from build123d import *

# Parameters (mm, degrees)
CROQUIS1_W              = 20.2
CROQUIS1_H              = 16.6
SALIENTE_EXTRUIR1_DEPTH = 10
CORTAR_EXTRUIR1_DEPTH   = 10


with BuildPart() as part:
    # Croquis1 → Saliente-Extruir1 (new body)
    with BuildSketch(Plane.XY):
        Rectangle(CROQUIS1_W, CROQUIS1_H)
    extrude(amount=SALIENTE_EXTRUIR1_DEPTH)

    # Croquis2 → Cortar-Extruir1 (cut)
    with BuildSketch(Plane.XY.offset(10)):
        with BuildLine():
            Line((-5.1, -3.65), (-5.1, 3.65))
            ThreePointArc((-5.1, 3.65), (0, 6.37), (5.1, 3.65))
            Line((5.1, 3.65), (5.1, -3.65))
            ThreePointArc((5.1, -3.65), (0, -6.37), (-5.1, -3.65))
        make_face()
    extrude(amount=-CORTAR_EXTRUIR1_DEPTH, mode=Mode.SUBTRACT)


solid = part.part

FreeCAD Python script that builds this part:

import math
import FreeCAD as App
import Part
import Sketcher

V = App.Vector
Q = App.Units.Quantity


def add_polygon(sketch, points):
    """Adds a closed chain of lines whose ends are joined by coincident constraints."""
    first, n = sketch.GeometryCount, len(points)
    for a, b in zip(points, points[1:] + points[:1]):
        sketch.addGeometry(Part.LineSegment(App.Vector(*a, 0), App.Vector(*b, 0)), False)
    for i in range(n):
        sketch.addConstraint(Sketcher.Constraint("Coincident", first + i, 2, first + (i + 1) % n, 1))

doc = App.newDocument("Part")
body = doc.addObject("PartDesign::Body", "Body")

# Sketch on XY plane
sketch1 = body.newObject("Sketcher::SketchObject", "Sketch")
sketch1.AttachmentSupport = (doc.getObject("XY_Plane"), [""])
sketch1.MapMode = "FlatFace"
add_polygon(sketch1, [(-10, 8), (-10, -8), (10, -8), (10, 8)])  # lines 0-3
sketch1.addConstraint([
    Sketcher.Constraint("Vertical", 0),
    Sketcher.Constraint("Horizontal", 1),
    Sketcher.Constraint("Vertical", 2),
    Sketcher.Constraint("Horizontal", 3),
    Sketcher.Constraint("Symmetric", 0, 2, 2, 2, -1, 1),
    Sketcher.Constraint("DistanceX", 1, 1, 1, 2, Q("20.2 mm")),
    Sketcher.Constraint("DistanceY", 0, 2, 0, 1, Q("16.6 mm")),
])
pad1 = body.newObject("PartDesign::Pad", "Pad")
pad1.Profile = sketch1
pad1.Length = 10

# Sketch on XY plane
sketch2 = body.newObject("Sketcher::SketchObject", "Sketch001")
sketch2.AttachmentSupport = (doc.getObject("XY_Plane"), [""])
sketch2.MapMode = "FlatFace"
sketch2.AttachmentOffset = App.Placement(V(0, 0, 10), App.Rotation())
sketch2.addGeometry([
    Part.LineSegment(V(-5.1, 3.65, 0), V(-5.1, -3.65, 0)),
    Part.ArcOfCircle(Part.Circle(V(0, -0.22875, 0), V(0, 0, 1), 6.14125), math.radians(-146.144974), math.radians(-33.855026)),
    Part.LineSegment(V(5.1, -3.65, 0), V(5.1, 3.65, 0)),
    Part.ArcOfCircle(Part.Circle(V(0, 0.22875, 0), V(0, 0, 1), 6.14125), math.radians(33.855026), math.radians(146.144974)),
], False)
sketch2.addConstraint([
    Sketcher.Constraint("Coincident", 0, 2, 1, 1),
    Sketcher.Constraint("Coincident", 1, 2, 2, 1),
    Sketcher.Constraint("Coincident", 2, 2, 3, 1),
    Sketcher.Constraint("Coincident", 3, 2, 0, 1),
    Sketcher.Constraint("Vertical", 0),
    Sketcher.Constraint("Vertical", 2),
    Sketcher.Constraint("Equal", 1, 3),
    Sketcher.Constraint("Symmetric", 1, 3, 3, 3, -1, 1),
    Sketcher.Constraint("Symmetric", 0, 2, 1, 2, -2),
    Sketcher.Constraint("DistanceY", 0, 2, 0, 1, Q("7.3 mm")),
    Sketcher.Constraint("DistanceX", 0, 2, -1, 1, Q("5.1 mm")),
    Sketcher.Constraint("Radius", 1, Q("6.14125 mm")),
])
pocket1 = body.newObject("PartDesign::Pocket", "Pocket")
pocket1.Profile = sketch2
pocket1.Length = 10

doc.recompute()
